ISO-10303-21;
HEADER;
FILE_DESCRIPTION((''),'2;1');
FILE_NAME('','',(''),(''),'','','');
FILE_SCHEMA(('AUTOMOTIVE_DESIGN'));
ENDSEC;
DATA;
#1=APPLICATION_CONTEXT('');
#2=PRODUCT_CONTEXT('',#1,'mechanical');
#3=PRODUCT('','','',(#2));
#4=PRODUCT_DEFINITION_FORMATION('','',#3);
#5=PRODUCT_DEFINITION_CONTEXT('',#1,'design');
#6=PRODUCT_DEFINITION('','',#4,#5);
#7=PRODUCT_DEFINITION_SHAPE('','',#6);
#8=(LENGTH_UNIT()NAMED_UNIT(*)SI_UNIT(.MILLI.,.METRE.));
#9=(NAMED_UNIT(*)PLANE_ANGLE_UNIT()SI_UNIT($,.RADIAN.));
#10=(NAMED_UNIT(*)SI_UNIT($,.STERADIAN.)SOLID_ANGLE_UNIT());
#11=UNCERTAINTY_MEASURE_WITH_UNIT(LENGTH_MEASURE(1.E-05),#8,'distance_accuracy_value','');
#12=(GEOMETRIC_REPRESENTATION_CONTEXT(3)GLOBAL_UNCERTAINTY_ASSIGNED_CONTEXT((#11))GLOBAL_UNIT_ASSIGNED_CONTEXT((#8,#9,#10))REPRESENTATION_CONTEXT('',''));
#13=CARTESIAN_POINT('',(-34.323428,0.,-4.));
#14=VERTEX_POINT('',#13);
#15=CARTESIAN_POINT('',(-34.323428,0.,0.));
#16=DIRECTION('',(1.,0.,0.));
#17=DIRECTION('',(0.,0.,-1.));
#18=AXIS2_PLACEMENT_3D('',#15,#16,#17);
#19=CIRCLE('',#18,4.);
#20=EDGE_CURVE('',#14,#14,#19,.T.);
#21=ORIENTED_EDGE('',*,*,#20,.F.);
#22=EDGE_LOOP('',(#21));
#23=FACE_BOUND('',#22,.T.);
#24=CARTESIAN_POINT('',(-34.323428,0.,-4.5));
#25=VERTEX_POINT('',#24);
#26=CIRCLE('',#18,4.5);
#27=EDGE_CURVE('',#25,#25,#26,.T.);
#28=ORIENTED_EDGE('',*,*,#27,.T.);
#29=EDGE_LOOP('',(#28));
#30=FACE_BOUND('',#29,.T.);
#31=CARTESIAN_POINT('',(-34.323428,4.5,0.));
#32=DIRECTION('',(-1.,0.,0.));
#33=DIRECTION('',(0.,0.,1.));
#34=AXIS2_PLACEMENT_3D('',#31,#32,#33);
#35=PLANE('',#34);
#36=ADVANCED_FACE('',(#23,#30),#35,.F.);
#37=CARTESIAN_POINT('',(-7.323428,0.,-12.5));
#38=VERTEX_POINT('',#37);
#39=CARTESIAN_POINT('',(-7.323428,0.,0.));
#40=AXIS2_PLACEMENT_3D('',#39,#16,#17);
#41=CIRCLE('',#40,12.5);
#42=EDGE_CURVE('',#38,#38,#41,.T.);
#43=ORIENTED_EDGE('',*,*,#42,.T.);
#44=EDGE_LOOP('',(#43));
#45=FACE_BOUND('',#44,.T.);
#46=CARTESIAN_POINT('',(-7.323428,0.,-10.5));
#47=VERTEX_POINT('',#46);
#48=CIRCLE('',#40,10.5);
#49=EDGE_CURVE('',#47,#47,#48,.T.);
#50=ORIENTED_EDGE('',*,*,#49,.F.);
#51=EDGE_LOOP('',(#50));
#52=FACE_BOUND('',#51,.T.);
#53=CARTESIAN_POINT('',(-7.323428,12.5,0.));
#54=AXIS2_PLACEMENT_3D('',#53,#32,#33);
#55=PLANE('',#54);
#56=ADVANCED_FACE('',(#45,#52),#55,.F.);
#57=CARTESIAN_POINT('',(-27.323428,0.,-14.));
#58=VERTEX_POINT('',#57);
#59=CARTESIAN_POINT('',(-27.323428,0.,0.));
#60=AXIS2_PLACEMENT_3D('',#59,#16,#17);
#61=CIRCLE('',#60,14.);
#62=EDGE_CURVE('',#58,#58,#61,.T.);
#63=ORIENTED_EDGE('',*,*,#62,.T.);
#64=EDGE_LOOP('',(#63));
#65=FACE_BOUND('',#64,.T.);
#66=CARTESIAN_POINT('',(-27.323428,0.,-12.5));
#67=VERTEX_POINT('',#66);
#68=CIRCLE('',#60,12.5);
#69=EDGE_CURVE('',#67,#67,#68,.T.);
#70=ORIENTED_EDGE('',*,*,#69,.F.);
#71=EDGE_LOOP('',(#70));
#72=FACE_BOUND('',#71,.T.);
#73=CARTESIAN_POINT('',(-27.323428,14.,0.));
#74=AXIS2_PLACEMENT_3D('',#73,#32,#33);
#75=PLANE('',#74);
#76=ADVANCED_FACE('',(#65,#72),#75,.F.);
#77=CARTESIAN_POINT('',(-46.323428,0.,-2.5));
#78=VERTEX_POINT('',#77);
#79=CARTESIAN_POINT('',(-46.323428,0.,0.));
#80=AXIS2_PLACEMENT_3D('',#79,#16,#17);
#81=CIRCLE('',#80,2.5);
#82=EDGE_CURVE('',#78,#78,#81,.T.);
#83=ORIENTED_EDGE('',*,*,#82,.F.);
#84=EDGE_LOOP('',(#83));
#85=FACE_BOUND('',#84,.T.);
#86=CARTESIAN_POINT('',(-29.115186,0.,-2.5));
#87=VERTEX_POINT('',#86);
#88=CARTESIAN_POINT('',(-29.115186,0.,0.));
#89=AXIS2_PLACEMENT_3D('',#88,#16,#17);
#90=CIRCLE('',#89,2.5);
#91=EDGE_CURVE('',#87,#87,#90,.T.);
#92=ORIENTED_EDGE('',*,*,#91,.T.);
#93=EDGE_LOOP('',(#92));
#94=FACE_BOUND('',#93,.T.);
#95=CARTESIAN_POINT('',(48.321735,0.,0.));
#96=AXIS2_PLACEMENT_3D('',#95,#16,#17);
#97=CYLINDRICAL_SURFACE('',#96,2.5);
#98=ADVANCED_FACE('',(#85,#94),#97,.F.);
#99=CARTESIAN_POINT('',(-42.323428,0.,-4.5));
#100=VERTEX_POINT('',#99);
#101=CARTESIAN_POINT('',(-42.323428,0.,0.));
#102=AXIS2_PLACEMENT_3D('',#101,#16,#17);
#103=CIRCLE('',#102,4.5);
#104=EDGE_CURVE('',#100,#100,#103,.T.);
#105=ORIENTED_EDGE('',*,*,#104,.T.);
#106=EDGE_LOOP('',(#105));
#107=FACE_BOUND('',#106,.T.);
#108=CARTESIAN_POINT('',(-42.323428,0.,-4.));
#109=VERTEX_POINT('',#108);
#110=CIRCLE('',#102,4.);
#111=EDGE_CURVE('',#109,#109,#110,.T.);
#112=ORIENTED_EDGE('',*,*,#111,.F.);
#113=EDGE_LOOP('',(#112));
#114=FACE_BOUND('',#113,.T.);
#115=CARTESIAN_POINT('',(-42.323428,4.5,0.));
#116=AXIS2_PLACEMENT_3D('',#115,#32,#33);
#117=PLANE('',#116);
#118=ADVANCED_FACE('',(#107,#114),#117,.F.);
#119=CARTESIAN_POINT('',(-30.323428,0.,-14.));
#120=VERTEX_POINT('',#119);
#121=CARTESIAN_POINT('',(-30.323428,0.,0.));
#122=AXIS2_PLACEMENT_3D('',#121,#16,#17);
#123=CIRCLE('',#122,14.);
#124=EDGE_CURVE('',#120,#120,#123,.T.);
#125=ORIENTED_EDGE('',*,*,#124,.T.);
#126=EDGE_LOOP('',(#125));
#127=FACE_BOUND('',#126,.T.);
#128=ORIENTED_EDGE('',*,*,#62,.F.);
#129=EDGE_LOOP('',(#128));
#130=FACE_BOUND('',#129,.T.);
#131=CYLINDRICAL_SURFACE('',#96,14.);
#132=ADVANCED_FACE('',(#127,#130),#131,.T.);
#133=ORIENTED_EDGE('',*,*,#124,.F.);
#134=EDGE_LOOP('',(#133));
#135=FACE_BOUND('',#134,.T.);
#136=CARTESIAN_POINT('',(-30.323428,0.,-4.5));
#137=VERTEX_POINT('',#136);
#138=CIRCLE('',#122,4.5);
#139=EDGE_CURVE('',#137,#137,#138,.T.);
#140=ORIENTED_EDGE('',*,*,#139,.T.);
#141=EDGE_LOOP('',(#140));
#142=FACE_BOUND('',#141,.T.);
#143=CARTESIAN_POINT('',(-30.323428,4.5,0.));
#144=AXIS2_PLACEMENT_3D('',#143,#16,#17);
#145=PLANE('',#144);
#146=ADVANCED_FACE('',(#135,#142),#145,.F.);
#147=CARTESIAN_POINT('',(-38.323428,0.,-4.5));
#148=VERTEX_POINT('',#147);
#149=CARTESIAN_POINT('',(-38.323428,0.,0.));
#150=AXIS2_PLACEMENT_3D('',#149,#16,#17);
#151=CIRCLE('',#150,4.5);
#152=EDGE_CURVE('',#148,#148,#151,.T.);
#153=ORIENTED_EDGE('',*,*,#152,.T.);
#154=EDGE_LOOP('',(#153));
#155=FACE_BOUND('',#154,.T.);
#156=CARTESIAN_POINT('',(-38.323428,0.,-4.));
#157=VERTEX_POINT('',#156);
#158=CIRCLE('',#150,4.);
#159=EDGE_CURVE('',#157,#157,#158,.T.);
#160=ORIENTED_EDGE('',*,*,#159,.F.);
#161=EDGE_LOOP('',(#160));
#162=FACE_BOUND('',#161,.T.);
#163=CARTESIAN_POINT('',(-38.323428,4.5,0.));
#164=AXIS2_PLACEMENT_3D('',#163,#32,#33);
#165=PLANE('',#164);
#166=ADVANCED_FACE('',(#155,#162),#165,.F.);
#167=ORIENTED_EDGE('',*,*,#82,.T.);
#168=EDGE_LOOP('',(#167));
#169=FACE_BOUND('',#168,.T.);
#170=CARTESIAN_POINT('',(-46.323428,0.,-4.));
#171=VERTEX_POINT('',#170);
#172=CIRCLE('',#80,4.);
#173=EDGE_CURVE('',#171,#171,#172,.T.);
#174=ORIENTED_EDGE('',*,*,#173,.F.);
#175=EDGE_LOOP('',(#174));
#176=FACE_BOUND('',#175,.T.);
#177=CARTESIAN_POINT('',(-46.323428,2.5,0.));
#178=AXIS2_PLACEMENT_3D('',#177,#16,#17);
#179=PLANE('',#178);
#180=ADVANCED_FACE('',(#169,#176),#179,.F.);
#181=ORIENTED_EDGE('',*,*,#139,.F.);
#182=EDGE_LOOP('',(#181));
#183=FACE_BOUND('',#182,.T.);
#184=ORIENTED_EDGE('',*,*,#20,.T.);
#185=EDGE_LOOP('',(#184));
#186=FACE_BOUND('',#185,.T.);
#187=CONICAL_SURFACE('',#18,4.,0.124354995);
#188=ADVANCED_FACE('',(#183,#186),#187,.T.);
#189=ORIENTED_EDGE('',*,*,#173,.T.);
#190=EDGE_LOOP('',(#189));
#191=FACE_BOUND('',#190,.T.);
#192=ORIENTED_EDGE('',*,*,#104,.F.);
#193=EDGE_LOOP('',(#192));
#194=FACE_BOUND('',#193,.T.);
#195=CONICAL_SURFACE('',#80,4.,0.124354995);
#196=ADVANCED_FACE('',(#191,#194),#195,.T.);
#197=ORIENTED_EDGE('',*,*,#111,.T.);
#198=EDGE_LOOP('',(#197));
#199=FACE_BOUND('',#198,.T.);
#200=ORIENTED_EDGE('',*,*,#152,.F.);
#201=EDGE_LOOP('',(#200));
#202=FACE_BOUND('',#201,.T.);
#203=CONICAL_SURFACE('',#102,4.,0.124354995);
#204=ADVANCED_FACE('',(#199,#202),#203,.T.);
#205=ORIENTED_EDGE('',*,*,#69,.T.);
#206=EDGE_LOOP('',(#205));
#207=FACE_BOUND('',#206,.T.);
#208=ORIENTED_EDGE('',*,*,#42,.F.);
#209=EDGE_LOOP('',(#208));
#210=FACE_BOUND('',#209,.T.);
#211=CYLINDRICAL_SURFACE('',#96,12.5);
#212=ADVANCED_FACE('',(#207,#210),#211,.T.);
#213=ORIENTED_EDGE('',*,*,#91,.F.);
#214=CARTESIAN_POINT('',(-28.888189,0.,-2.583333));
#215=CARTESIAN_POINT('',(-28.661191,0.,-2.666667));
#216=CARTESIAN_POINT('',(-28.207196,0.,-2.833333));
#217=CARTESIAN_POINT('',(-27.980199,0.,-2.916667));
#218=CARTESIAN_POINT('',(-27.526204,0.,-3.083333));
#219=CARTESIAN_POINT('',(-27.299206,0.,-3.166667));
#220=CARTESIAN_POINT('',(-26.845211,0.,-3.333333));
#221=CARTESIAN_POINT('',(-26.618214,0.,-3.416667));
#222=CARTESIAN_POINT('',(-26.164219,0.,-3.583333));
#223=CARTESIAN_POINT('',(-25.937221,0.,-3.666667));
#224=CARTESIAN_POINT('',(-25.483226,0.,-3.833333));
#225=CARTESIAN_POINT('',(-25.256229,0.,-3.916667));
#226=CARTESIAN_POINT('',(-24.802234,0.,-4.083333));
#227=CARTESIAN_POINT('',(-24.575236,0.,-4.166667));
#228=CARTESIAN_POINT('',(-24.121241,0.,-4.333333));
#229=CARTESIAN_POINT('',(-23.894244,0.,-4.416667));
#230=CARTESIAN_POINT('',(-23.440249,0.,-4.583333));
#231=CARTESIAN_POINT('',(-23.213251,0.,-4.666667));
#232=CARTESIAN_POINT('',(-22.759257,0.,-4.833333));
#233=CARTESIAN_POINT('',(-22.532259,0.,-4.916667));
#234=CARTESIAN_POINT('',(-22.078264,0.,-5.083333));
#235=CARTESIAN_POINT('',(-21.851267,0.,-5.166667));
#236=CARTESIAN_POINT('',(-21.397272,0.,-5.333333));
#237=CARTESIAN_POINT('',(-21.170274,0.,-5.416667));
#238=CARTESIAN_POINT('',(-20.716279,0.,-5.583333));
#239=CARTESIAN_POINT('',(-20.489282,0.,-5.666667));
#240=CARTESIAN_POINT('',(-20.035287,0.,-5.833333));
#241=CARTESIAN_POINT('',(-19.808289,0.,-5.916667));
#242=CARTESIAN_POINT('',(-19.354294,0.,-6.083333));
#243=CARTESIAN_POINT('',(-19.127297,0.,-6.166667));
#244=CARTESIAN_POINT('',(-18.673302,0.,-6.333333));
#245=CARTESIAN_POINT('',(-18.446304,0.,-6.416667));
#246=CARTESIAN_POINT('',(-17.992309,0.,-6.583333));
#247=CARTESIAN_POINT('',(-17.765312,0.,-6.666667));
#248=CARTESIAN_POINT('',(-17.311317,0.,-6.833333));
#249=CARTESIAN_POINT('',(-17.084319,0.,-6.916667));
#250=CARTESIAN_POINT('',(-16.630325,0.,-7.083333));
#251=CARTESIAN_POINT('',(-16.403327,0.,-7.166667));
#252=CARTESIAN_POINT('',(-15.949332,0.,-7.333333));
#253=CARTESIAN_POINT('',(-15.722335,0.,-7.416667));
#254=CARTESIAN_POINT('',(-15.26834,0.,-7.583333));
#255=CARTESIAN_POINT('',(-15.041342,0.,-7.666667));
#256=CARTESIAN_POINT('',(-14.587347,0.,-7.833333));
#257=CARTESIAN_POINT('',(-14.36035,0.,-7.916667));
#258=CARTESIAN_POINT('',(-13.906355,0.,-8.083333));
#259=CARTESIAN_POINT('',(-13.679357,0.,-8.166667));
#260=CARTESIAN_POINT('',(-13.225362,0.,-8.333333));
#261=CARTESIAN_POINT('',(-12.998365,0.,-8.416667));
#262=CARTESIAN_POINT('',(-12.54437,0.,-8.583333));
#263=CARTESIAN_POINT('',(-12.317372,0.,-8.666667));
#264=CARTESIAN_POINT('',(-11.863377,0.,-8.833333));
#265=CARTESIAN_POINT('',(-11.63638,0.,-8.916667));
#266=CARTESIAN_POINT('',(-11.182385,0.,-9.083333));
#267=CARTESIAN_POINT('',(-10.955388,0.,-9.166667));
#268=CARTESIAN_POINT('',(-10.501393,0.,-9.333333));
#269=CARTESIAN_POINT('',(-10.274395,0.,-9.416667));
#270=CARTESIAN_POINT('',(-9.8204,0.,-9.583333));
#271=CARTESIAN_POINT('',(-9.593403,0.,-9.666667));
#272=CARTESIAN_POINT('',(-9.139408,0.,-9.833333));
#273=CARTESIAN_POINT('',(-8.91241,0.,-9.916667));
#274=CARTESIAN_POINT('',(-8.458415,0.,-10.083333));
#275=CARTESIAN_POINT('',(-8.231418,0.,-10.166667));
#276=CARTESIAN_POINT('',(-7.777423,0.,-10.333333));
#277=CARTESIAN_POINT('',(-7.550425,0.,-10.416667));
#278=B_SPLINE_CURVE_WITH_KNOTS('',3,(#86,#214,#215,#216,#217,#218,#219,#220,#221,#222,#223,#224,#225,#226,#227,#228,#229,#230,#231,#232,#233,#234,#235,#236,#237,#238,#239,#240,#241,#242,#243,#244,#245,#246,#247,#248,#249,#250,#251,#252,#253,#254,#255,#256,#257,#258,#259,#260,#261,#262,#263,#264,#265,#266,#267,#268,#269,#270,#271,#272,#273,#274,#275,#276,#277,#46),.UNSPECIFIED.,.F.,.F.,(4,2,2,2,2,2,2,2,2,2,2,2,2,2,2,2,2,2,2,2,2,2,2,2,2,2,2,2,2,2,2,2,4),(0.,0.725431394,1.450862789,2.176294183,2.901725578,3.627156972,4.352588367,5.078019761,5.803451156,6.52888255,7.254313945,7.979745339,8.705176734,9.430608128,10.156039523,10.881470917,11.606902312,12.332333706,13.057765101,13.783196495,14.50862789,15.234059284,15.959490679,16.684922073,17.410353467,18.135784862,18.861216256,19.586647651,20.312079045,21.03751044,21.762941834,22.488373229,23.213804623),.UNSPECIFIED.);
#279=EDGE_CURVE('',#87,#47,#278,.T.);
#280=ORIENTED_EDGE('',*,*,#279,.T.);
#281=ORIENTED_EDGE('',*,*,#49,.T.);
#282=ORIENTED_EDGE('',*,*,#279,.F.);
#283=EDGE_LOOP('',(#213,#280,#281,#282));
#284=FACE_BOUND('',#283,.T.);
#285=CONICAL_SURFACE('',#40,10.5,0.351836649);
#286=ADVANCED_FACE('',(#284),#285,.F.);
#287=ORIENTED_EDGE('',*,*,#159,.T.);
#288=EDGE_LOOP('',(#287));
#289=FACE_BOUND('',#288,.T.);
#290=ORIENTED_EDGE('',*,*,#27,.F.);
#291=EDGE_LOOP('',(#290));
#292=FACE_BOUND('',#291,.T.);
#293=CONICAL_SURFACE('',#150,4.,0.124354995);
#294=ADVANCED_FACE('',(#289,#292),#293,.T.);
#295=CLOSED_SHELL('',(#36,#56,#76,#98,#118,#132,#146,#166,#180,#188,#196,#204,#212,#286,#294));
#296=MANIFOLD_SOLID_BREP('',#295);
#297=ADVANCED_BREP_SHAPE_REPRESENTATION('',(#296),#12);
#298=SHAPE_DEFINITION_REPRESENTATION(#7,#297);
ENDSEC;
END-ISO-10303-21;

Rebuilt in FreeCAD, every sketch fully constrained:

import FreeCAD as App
import Part
import Sketcher
from FreeCAD import Vector

doc = App.newDocument("Part")
body = doc.addObject("PartDesign::Body", "Body")

# Sketch on XY plane
sketch1 = body.newObject("Sketcher::SketchObject", "Sketch")
sketch1.AttachmentSupport = (doc.getObject("XY_Plane"), [""])
sketch1.MapMode = "FlatFace"
sketch1.addGeometry(Part.LineSegment(Vector(-27.3, 12.5, 0), Vector(-27.3, 14, 0)), False)
sketch1.addGeometry(Part.LineSegment(Vector(-27.3, 14, 0), Vector(-30.3, 14, 0)), False)
sketch1.addGeometry(Part.LineSegment(Vector(-30.3, 14, 0), Vector(-30.3, 4.5, 0)), False)
sketch1.addGeometry(Part.LineSegment(Vector(-30.3, 4.5, 0), Vector(-34.3, 4, 0)), False)
sketch1.addGeometry(Part.LineSegment(Vector(-34.3, 4, 0), Vector(-34.3, 4.5, 0)), False)
sketch1.addGeometry(Part.LineSegment(Vector(-34.3, 4.5, 0), Vector(-38.3, 4, 0)), False)
sketch1.addGeometry(Part.LineSegment(Vector(-38.3, 4, 0), Vector(-38.3, 4.5, 0)), False)
sketch1.addGeometry(Part.LineSegment(Vector(-38.3, 4.5, 0), Vector(-42.3, 4, 0)), False)
sketch1.addGeometry(Part.LineSegment(Vector(-42.3, 4, 0), Vector(-42.3, 4.5, 0)), False)
sketch1.addGeometry(Part.LineSegment(Vector(-42.3, 4.5, 0), Vector(-46.3, 4, 0)), False)
sketch1.addGeometry(Part.LineSegment(Vector(-46.3, 4, 0), Vector(-46.3, 2.5, 0)), False)
sketch1.addGeometry(Part.LineSegment(Vector(-46.3, 2.5, 0), Vector(-29.1, 2.5, 0)), False)
sketch1.addGeometry(Part.LineSegment(Vector(-29.1, 2.5, 0), Vector(-7.3, 10.5, 0)), False)
sketch1.addGeometry(Part.LineSegment(Vector(-7.3, 10.5, 0), Vector(-7.3, 12.5, 0)), False)
sketch1.addGeometry(Part.LineSegment(Vector(-7.3, 12.5, 0), Vector(-27.3, 12.5, 0)), False)
sketch1.addConstraint(Sketcher.Constraint("Coincident", 0, 2, 1, 1))
sketch1.addConstraint(Sketcher.Constraint("Coincident", 1, 2, 2, 1))
sketch1.addConstraint(Sketcher.Constraint("Coincident", 2, 2, 3, 1))
sketch1.addConstraint(Sketcher.Constraint("Coincident", 3, 2, 4, 1))
sketch1.addConstraint(Sketcher.Constraint("Coincident", 4, 2, 5, 1))
sketch1.addConstraint(Sketcher.Constraint("Coincident", 5, 2, 6, 1))
sketch1.addConstraint(Sketcher.Constraint("Coincident", 6, 2, 7, 1))
sketch1.addConstraint(Sketcher.Constraint("Coincident", 7, 2, 8, 1))
sketch1.addConstraint(Sketcher.Constraint("Coincident", 8, 2, 9, 1))
sketch1.addConstraint(Sketcher.Constraint("Coincident", 9, 2, 10, 1))
sketch1.addConstraint(Sketcher.Constraint("Coincident", 10, 2, 11, 1))
sketch1.addConstraint(Sketcher.Constraint("Coincident", 11, 2, 12, 1))
sketch1.addConstraint(Sketcher.Constraint("Coincident", 12, 2, 13, 1))
sketch1.addConstraint(Sketcher.Constraint("Coincident", 13, 2, 14, 1))
sketch1.addConstraint(Sketcher.Constraint("Coincident", 14, 2, 0, 1))
sketch1.addConstraint(Sketcher.Constraint("Vertical", 0))
sketch1.addConstraint(Sketcher.Constraint("Horizontal", 1))
sketch1.addConstraint(Sketcher.Constraint("Vertical", 2))
sketch1.addConstraint(Sketcher.Constraint("Vertical", 4))
sketch1.addConstraint(Sketcher.Constraint("Vertical", 6))
sketch1.addConstraint(Sketcher.Constraint("Vertical", 8))
sketch1.addConstraint(Sketcher.Constraint("Vertical", 10))
sketch1.addConstraint(Sketcher.Constraint("Horizontal", 11))
sketch1.addConstraint(Sketcher.Constraint("Vertical", 13))
sketch1.addConstraint(Sketcher.Constraint("Horizontal", 14))
sketch1.addConstraint(Sketcher.Constraint("Parallel", 3, 5))
sketch1.addConstraint(Sketcher.Constraint("Parallel", 5, 7))
sketch1.addConstraint(Sketcher.Constraint("Parallel", 7, 9))
sketch1.addConstraint(Sketcher.Constraint("Horizontal", 2, 2, 4, 2))
sketch1.addConstraint(Sketcher.Constraint("Horizontal", 3, 2, 5, 2))
sketch1.addConstraint(Sketcher.Constraint("Horizontal", 4, 2, 6, 2))
sketch1.addConstraint(Sketcher.Constraint("Horizontal", 5, 2, 7, 2))
sketch1.addConstraint(Sketcher.Constraint("Horizontal", 6, 2, 8, 2))
sketch1.addConstraint(Sketcher.Constraint("Horizontal", 7, 2, 9, 2))
sketch1.addConstraint(Sketcher.Constraint("Equal", 0, 10))
sketch1.addConstraint(Sketcher.Constraint("DistanceX", 1, 2, 1, 1, 3.0))
sketch1.addConstraint(Sketcher.Constraint("DistanceX", 14, 2, 14, 1, 20.0))
sketch1.addConstraint(Sketcher.Constraint("DistanceY", 13, 1, 13, 2, 2.0))
sketch1.addConstraint(Sketcher.Constraint("DistanceY", 0, 1, 0, 2, 1.5))
sketch1.addConstraint(Sketcher.Constraint("DistanceY", 2, 2, 2, 1, 9.5))
sketch1.addConstraint(Sketcher.Constraint("DistanceY", 4, 1, 4, 2, 0.5))
sketch1.addConstraint(Sketcher.Constraint("DistanceY", -1, 1, 0, 2, 14.0))
sketch1.addConstraint(Sketcher.Constraint("DistanceX", 3, 2, 2, 2, 4.0))
sketch1.addConstraint(Sketcher.Constraint("DistanceX", 11, 1, 11, 2, 17.208242))
sketch1.addConstraint(Sketcher.Constraint("DistanceX", 0, 2, -1, 1, 27.323428))
revolution = body.newObject("PartDesign::Revolution", "Revolution")
revolution.Profile = sketch1
revolution.ReferenceAxis = (sketch1, ["H_Axis"])
revolution.Angle = 360

doc.recompute()
